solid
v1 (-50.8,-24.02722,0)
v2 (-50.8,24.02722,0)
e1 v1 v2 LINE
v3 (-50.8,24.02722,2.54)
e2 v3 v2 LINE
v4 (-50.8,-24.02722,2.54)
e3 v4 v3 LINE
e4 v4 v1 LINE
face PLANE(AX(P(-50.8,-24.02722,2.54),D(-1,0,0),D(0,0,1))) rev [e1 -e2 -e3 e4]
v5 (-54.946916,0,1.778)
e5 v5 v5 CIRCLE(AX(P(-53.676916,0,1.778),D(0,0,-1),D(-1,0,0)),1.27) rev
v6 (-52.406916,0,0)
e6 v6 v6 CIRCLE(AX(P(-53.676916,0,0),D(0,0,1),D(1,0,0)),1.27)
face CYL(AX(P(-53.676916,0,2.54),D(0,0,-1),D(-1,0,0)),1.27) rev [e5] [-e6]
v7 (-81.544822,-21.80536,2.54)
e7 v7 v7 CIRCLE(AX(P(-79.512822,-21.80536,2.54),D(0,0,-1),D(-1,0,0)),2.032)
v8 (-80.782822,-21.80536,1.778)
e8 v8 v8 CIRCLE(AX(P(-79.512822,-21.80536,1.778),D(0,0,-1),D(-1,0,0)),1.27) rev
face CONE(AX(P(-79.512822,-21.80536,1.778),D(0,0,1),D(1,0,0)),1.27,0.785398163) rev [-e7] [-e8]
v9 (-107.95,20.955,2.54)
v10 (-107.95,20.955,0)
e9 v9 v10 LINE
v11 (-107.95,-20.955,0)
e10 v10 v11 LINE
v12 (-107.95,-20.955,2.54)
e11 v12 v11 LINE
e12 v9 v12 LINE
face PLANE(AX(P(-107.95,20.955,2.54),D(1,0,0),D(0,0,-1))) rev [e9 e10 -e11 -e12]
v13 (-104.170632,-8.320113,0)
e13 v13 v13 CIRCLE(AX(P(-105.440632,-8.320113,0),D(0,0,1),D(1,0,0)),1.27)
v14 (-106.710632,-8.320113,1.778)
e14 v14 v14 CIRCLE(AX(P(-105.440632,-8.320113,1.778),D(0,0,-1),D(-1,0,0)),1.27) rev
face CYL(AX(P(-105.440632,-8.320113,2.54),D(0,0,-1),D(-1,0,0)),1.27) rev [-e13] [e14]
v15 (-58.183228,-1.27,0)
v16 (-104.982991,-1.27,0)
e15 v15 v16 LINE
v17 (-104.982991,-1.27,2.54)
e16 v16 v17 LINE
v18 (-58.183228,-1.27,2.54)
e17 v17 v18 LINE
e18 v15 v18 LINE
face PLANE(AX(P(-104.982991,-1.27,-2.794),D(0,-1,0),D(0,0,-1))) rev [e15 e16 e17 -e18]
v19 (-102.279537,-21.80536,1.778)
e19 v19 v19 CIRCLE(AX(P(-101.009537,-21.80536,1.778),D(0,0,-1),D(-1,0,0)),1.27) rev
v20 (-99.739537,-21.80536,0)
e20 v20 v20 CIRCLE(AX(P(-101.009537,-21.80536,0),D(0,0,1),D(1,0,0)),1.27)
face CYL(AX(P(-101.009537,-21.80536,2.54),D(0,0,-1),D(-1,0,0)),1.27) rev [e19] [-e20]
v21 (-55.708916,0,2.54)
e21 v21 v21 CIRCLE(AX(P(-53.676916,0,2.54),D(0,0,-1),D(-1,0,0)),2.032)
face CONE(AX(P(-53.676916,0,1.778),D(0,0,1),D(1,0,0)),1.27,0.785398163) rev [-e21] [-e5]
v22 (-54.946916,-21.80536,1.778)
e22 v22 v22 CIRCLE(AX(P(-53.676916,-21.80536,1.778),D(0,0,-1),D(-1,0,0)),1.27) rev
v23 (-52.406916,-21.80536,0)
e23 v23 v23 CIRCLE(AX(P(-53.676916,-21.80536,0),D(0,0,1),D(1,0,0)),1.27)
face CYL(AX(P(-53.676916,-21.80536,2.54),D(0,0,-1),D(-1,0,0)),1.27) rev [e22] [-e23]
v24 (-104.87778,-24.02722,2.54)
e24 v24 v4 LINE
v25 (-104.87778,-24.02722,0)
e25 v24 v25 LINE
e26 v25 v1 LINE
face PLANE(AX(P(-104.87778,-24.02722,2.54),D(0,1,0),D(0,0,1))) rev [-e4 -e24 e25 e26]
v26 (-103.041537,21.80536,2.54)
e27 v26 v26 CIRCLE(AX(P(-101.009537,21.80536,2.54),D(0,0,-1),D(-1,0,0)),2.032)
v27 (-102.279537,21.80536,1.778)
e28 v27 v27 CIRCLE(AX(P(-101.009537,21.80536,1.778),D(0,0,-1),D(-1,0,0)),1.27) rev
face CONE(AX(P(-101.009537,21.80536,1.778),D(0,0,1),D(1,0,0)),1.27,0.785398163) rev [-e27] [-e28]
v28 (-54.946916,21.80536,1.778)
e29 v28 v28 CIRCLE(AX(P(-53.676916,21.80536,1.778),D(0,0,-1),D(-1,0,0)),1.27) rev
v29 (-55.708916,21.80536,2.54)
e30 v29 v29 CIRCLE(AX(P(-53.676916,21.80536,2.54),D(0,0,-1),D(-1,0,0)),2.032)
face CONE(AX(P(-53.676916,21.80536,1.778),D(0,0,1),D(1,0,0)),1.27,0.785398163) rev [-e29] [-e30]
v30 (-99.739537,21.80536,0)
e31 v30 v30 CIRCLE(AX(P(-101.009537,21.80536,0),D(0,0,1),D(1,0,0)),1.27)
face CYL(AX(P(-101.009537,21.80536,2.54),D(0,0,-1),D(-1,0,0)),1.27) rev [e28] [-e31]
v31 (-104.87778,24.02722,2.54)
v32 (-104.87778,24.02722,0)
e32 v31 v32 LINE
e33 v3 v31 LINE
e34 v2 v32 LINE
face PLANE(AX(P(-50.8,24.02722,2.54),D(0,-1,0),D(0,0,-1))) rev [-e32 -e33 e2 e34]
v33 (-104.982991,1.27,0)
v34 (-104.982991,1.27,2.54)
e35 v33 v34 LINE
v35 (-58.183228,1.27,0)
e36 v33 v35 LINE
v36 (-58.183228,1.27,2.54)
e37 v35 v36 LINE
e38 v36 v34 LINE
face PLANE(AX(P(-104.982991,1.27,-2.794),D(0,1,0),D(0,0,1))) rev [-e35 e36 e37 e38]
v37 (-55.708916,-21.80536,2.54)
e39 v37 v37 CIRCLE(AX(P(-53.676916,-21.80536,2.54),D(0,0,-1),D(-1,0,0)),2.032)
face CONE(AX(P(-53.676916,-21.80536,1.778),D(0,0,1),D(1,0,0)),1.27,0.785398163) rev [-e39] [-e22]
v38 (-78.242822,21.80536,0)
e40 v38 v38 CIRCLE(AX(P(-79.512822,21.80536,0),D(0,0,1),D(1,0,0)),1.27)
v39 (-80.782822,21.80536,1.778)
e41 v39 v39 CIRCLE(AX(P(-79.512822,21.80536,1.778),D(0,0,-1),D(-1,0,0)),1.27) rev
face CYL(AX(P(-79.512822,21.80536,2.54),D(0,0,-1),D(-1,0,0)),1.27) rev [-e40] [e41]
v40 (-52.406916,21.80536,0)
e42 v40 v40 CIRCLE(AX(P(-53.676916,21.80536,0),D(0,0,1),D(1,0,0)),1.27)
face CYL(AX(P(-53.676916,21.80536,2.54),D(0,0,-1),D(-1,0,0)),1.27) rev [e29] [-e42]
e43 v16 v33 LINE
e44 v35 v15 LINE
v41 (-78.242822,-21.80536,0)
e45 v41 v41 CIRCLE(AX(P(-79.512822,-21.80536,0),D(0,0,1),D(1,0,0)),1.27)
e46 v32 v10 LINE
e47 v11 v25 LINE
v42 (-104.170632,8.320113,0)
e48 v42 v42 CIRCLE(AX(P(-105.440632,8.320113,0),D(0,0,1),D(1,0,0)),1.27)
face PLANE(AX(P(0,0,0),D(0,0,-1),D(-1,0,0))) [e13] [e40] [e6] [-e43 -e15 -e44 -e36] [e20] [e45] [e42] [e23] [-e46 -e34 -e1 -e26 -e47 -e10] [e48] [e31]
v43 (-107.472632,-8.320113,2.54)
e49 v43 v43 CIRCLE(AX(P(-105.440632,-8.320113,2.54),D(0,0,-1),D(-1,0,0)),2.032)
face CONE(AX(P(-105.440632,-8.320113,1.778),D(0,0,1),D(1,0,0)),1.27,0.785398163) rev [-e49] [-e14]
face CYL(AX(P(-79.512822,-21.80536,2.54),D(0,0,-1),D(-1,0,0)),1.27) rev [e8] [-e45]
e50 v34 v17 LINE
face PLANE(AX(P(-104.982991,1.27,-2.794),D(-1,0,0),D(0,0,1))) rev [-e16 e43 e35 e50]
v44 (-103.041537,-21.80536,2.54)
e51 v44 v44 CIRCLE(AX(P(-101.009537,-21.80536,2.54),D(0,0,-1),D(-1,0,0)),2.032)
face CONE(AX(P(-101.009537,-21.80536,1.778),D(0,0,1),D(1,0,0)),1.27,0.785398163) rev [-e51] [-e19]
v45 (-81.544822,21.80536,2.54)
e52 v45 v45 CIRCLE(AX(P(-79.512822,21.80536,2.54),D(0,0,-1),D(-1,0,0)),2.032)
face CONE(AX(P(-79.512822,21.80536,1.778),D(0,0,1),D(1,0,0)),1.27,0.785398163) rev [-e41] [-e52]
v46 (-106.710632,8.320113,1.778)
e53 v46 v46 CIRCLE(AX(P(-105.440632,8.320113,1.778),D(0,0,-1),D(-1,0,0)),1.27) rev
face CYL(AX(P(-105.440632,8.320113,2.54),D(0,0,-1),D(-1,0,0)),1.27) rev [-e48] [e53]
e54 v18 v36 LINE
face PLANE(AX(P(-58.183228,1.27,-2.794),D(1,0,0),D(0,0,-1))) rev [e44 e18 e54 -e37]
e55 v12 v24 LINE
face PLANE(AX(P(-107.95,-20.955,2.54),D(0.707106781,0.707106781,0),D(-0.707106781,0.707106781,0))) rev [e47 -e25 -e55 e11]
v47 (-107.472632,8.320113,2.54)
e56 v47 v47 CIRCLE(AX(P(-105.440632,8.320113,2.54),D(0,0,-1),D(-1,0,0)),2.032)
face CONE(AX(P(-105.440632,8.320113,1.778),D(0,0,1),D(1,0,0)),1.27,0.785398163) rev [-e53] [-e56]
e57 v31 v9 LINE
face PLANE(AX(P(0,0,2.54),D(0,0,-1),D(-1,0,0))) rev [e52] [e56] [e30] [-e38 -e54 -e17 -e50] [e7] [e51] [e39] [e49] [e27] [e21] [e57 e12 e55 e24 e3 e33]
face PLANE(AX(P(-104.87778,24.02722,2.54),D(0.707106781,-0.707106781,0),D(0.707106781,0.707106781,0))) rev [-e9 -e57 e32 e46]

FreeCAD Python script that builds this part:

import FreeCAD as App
import Part
import Sketcher
Q = App.Units.Quantity


def edges_at(feature, points):
    """Names of the edges that pass closest to the given points."""
    edges = feature.Shape.Edges
    near = lambda p: min(range(len(edges)), key=lambda i: edges[i].distToShape(Part.Vertex(*p))[0])
    return sorted({f"Edge{near(p) + 1}" for p in points})

doc = App.newDocument("Part")
body = doc.addObject("PartDesign::Body", "Body")

# Sketch on XY plane
sketch1 = doc.addObject("Sketcher::SketchObject", "Sketch")
body.addObject(sketch1)
sketch1.AttachmentSupport = (doc.XY_Plane, [""])
sketch1.MapMode = "FlatFace"
sketch1.addGeometry(Part.LineSegment(App.Vector(-104.9, -24, 0), App.Vector(-50.8, -24, 0)), False)
sketch1.addGeometry(Part.LineSegment(App.Vector(-50.8, -24, 0), App.Vector(-50.8, 24, 0)), False)
sketch1.addGeometry(Part.LineSegment(App.Vector(-50.8, 24, 0), App.Vector(-104.9, 24, 0)), False)
sketch1.addGeometry(Part.LineSegment(App.Vector(-104.9, 24, 0), App.Vector(-108, 21, 0)), False)
sketch1.addGeometry(Part.LineSegment(App.Vector(-108, 21, 0), App.Vector(-108, -21, 0)), False)
sketch1.addGeometry(Part.LineSegment(App.Vector(-108, -21, 0), App.Vector(-104.9, -24, 0)), False)
sketch1.addGeometry(Part.Circle(App.Vector(-101, -21.8, 0), App.Vector(0, 0, 1), 1.3), False)
sketch1.addGeometry(Part.Circle(App.Vector(-105.4, -8.3, 0), App.Vector(0, 0, 1), 1.3), False)
sketch1.addGeometry(Part.Circle(App.Vector(-79.5, -21.8, 0), App.Vector(0, 0, 1), 1.3), False)
sketch1.addGeometry(Part.Circle(App.Vector(-53.7, -21.8, 0), App.Vector(0, 0, 1), 1.3), False)
sketch1.addGeometry(Part.Circle(App.Vector(-105.4, 8.3, 0), App.Vector(0, 0, 1), 1.3), False)
sketch1.addGeometry(Part.Circle(App.Vector(-101, 21.8, 0), App.Vector(0, 0, 1), 1.3), False)
sketch1.addGeometry(Part.Circle(App.Vector(-53.7, 0, 0), App.Vector(0, 0, 1), 1.3), False)
sketch1.addGeometry(Part.Circle(App.Vector(-79.5, 21.8, 0), App.Vector(0, 0, 1), 1.3), False)
sketch1.addGeometry(Part.Circle(App.Vector(-53.7, 21.8, 0), App.Vector(0, 0, 1), 1.3), False)
sketch1.addConstraint(Sketcher.Constraint("Coincident", 0, 2, 1, 1))
sketch1.addConstraint(Sketcher.Constraint("Coincident", 1, 2, 2, 1))
sketch1.addConstraint(Sketcher.Constraint("Coincident", 2, 2, 3, 1))
sketch1.addConstraint(Sketcher.Constraint("Coincident", 3, 2, 4, 1))
sketch1.addConstraint(Sketcher.Constraint("Coincident", 4, 2, 5, 1))
sketch1.addConstraint(Sketcher.Constraint("Coincident", 5, 2, 0, 1))
sketch1.addConstraint(Sketcher.Constraint("Horizontal", 0))
sketch1.addConstraint(Sketcher.Constraint("Vertical", 1))
sketch1.addConstraint(Sketcher.Constraint("Horizontal", 2))
sketch1.addConstraint(Sketcher.Constraint("Vertical", 4))
sketch1.addConstraint(Sketcher.Constraint("Equal", 6, 7))
sketch1.addConstraint(Sketcher.Constraint("Equal", 7, 8))
sketch1.addConstraint(Sketcher.Constraint("Equal", 8, 9))
sketch1.addConstraint(Sketcher.Constraint("Equal", 9, 10))
sketch1.addConstraint(Sketcher.Constraint("Equal", 10, 11))
sketch1.addConstraint(Sketcher.Constraint("Equal", 11, 12))
sketch1.addConstraint(Sketcher.Constraint("Equal", 12, 13))
sketch1.addConstraint(Sketcher.Constraint("Equal", 13, 14))
sketch1.addConstraint(Sketcher.Constraint("Symmetric", 7, 3, 10, 3, -1))
sketch1.addConstraint(Sketcher.Constraint("Symmetric", 6, 3, 11, 3, -1))
sketch1.addConstraint(Sketcher.Constraint("Symmetric", 8, 3, 13, 3, -1))
sketch1.addConstraint(Sketcher.Constraint("Symmetric", 9, 3, 14, 3, -1))
sketch1.addConstraint(Sketcher.Constraint("Symmetric", 2, 2, 5, 2, -1))
sketch1.addConstraint(Sketcher.Constraint("PointOnObject", 12, 3, -1))
sketch1.addConstraint(Sketcher.Constraint("Perpendicular", 3, 5))
sketch1.addConstraint(Sketcher.Constraint("Horizontal", 6, 3, 8, 3))
sketch1.addConstraint(Sketcher.Constraint("Horizontal", 8, 3, 9, 3))
sketch1.addConstraint(Sketcher.Constraint("Vertical", 9, 3, 12, 3))
sketch1.addConstraint(Sketcher.Constraint("Equal", 3, 5))
sketch1.addConstraint(Sketcher.Constraint("Diameter", 6, Q("0.1 in")))
sketch1.addConstraint(Sketcher.Constraint("DistanceX", 0, 2, -1, 1, Q("2 in")))
sketch1.addConstraint(Sketcher.Constraint("DistanceY", 4, 2, 4, 1, Q("1.65 in")))
sketch1.addConstraint(Sketcher.Constraint("DistanceX", 3, 2, -1, 1, Q("4.25 in")))
sketch1.addConstraint(Sketcher.Constraint("DistanceX", 0, 1, 0, 2, Q("54.07778 mm")))
sketch1.addConstraint(Sketcher.Constraint("DistanceY", 6, 3, -1, 1, Q("21.80536 mm")))
sketch1.addConstraint(Sketcher.Constraint("DistanceX", 7, 3, -1, 1, Q("105.440632 mm")))
sketch1.addConstraint(Sketcher.Constraint("DistanceX", 8, 3, -1, 1, Q("79.512822 mm")))
sketch1.addConstraint(Sketcher.Constraint("DistanceX", 6, 3, 9, 3, Q("47.332621 mm")))
sketch1.addConstraint(Sketcher.Constraint("DistanceX", 6, 3, -1, 1, Q("101.009537 mm")))
sketch1.addConstraint(Sketcher.Constraint("DistanceY", 7, 3, -1, 1, Q("8.320113 mm")))
pad1 = doc.addObject("PartDesign::Pad", "Pad")
body.addObject(pad1)
pad1.Profile = sketch1
pad1.Length = Q("0.1 in")
doc.recompute()

chamfer = doc.addObject("PartDesign::Chamfer", "Chamfer")
body.addObject(chamfer)
chamfer.Base = (pad1, edges_at(pad1, [
    (-80.783, 21.805, 2.54),
    (-54.947, 21.805, 2.54),
    (-102.28, 21.805, 2.54),
    (-54.947, 0, 2.54),
    (-54.947, -21.805, 2.54),
    (-80.783, -21.805, 2.54),
    (-102.28, -21.805, 2.54),
    (-106.711, -8.32, 2.54),
    (-106.711, 8.32, 2.54),
]))
chamfer.Size = Q("0.03 in")

# Sketch on XY plane
sketch2 = doc.addObject("Sketcher::SketchObject", "Sketch001")
body.addObject(sketch2)
sketch2.AttachmentSupport = (doc.XY_Plane, [""])
sketch2.MapMode = "FlatFace"
sketch2.AttachmentOffset = App.Placement(App.Vector(0, 0, 0.1 * 25.4), App.Rotation())
sketch2.addGeometry(Part.LineSegment(App.Vector(-105, 1.3, 0), App.Vector(-105, -1.3, 0)), False)
sketch2.addGeometry(Part.LineSegment(App.Vector(-105, -1.3, 0), App.Vector(-58.2, -1.3, 0)), False)
sketch2.addGeometry(Part.LineSegment(App.Vector(-58.2, -1.3, 0), App.Vector(-58.2, 1.3, 0)), False)
sketch2.addGeometry(Part.LineSegment(App.Vector(-58.2, 1.3, 0), App.Vector(-105, 1.3, 0)), False)
sketch2.addConstraint(Sketcher.Constraint("Coincident", 0, 2, 1, 1))
sketch2.addConstraint(Sketcher.Constraint("Coincident", 1, 2, 2, 1))
sketch2.addConstraint(Sketcher.Constraint("Coincident", 2, 2, 3, 1))
sketch2.addConstraint(Sketcher.Constraint("Coincident", 3, 2, 0, 1))
sketch2.addConstraint(Sketcher.Constraint("Vertical", 0))
sketch2.addConstraint(Sketcher.Constraint("Horizontal", 1))
sketch2.addConstraint(Sketcher.Constraint("Vertical", 2))
sketch2.addConstraint(Sketcher.Constraint("Horizontal", 3))
sketch2.addConstraint(Sketcher.Constraint("DistanceY", 0, 2, 0, 1, Q("0.1 in")))
sketch2.addConstraint(Sketcher.Constraint("DistanceY", 0, 2, -1, 1, Q("0.05 in")))
sketch2.addConstraint(Sketcher.Constraint("DistanceX", 1, 1, 1, 2, Q("46.799763 mm")))
sketch2.addConstraint(Sketcher.Constraint("DistanceX", 0, 2, -1, 1, Q("104.982991 mm")))
pocket1 = doc.addObject("PartDesign::Pocket", "Pocket")
body.addObject(pocket1)
pocket1.Profile = sketch2
pocket1.Length = Q("0.21 in")

doc.recompute()
